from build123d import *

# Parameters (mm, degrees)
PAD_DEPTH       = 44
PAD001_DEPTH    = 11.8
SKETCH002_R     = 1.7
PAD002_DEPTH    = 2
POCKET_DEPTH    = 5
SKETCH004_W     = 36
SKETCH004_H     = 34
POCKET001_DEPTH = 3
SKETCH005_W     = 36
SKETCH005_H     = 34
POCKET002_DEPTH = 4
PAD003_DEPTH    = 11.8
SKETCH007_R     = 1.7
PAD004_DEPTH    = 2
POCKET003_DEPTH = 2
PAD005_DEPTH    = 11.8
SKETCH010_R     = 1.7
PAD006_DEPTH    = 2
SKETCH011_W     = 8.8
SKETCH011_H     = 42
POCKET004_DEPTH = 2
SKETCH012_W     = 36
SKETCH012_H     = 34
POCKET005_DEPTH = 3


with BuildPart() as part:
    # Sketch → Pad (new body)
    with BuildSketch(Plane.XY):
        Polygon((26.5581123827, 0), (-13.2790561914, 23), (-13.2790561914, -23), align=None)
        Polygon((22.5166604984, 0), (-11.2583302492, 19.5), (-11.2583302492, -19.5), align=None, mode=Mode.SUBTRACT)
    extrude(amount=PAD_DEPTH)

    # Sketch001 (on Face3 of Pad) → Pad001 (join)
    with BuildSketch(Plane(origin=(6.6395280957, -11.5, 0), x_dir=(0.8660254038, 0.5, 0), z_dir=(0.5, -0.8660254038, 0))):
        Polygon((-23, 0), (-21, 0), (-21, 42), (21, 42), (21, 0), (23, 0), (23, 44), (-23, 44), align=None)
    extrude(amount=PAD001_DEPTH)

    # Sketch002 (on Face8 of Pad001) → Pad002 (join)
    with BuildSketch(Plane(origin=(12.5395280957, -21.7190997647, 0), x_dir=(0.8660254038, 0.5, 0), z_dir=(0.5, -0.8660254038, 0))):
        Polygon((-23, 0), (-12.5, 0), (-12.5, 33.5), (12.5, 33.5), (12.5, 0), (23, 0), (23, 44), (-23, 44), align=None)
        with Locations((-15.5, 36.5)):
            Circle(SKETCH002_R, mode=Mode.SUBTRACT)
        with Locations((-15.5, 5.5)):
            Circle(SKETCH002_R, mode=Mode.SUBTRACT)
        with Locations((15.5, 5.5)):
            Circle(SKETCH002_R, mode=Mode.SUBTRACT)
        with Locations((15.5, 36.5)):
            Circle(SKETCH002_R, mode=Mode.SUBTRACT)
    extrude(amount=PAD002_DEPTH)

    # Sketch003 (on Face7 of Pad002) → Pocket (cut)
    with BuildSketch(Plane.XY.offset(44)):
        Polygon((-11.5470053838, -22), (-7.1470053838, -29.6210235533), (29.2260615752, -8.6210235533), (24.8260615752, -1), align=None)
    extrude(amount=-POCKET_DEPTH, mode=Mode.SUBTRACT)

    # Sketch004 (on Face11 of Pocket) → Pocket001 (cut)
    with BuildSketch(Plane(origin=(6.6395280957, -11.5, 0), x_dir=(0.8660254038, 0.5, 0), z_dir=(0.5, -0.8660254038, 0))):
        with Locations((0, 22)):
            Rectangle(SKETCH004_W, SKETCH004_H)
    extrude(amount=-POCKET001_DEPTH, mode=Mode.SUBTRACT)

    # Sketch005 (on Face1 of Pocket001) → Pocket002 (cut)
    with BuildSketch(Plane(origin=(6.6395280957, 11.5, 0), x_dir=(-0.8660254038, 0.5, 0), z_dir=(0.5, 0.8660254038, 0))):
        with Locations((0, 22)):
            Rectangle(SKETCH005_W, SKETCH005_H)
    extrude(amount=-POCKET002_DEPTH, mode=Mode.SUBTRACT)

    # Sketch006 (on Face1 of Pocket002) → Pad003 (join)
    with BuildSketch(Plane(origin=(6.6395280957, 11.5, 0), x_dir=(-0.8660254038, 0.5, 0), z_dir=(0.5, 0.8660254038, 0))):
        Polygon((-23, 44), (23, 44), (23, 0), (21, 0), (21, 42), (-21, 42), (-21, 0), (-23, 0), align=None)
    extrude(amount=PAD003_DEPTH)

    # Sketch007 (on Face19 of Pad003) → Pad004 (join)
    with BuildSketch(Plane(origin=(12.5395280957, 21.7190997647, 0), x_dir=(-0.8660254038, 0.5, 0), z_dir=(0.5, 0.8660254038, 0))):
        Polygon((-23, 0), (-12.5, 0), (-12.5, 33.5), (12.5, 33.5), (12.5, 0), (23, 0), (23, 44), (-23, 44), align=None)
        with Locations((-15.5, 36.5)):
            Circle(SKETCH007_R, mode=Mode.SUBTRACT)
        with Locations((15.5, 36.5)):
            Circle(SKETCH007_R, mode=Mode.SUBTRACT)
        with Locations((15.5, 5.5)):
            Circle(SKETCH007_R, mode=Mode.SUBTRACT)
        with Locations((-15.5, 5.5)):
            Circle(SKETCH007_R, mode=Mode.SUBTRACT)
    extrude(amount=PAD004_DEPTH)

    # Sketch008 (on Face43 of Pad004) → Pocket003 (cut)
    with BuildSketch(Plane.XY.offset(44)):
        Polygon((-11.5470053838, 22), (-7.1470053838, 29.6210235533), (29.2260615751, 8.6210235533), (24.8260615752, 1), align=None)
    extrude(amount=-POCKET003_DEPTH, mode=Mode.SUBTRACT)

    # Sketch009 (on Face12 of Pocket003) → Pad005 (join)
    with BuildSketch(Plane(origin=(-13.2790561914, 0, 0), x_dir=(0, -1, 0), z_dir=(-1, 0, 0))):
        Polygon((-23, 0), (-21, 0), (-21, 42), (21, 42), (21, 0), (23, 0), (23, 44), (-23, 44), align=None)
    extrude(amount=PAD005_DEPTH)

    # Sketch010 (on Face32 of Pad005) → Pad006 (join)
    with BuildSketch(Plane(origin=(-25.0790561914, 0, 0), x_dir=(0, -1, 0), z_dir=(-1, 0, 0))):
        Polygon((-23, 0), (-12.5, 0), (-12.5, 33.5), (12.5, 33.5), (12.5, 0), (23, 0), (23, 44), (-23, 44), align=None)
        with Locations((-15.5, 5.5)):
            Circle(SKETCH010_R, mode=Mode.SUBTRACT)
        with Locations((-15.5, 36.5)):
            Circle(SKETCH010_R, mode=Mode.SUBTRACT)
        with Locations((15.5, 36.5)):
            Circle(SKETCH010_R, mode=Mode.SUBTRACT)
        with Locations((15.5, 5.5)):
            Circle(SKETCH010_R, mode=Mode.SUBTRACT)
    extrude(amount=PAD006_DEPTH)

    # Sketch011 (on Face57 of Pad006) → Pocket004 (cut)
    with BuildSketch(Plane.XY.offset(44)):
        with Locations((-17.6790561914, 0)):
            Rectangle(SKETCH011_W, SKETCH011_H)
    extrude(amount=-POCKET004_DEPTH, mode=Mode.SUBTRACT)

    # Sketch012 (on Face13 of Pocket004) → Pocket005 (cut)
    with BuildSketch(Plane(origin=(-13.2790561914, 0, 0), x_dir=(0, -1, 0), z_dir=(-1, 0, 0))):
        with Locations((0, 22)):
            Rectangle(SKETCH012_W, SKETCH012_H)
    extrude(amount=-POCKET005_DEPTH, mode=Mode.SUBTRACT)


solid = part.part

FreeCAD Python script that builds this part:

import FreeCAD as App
import Part
import Sketcher
from FreeCAD import Vector
Q = App.Units.Quantity


def add_polygon(sketch, points):
    """Adds a closed chain of lines whose ends are joined by coincident constraints."""
    first, n = sketch.GeometryCount, len(points)
    for a, b in zip(points, points[1:] + points[:1]):
        sketch.addGeometry(Part.LineSegment(App.Vector(*a, 0), App.Vector(*b, 0)), False)
    for i in range(n):
        sketch.addConstraint(Sketcher.Constraint("Coincident", first + i, 2, first + (i + 1) % n, 1))

doc = App.newDocument("Part")
body = doc.addObject("PartDesign::Body", "Body")

# Sketch on XY plane
sketch1 = body.newObject("Sketcher::SketchObject", "Sketch")
sketch1.AttachmentSupport = (doc.getObject("XY_Plane"), [""])
sketch1.MapMode = "FlatFace"
add_polygon(sketch1, [(27, 0), (-13, 23), (-13, -23)])  # lines 0-2
add_polygon(sketch1, [(-11, 20), (23, 0), (-11, -20)])  # lines 3-5
sketch1.addConstraint([
    Sketcher.Constraint("Vertical", 1),
    Sketcher.Constraint("Vertical", 5),
    Sketcher.Constraint("PointOnObject", 2, 2, -1),
    Sketcher.Constraint("PointOnObject", 3, 2, -1),
    Sketcher.Constraint("Parallel", 0, 3),
    Sketcher.Constraint("Parallel", 2, 4),
    Sketcher.Constraint("Equal", 0, 2),
    Sketcher.Constraint("DistanceY", 1, 2, 1, 1, 46.0),
    Sketcher.Constraint("DistanceY", 5, 1, 5, 2, 39.0),
    Sketcher.Constraint("Angle", 0, Q("150 deg")),
    Sketcher.Constraint("DistanceX", -1, 1, 3, 2, 22.51666),
    Sketcher.Constraint("DistanceX", 3, 2, 2, 2, 4.041452),
])
pad1 = body.newObject("PartDesign::Pad", "Pad")
pad1.Profile = sketch1
pad1.Length = 44

# Sketch on an angled plane
sketch2 = body.newObject("Sketcher::SketchObject", "Sketch001")
sketch2.Placement = App.Placement(Vector(6.639528, -11.5, 0), App.Rotation(Vector(0.866025404, 0.5, 0), Vector(0, 0, 1), Vector(0.5, -0.866025404, 0), "ZXY"))
add_polygon(sketch2, [(-23, 0), (-21, 0), (-21, 42), (21, 42), (21, 0), (23, 0), (23, 44), (-23, 44)])  # lines 0-7
sketch2.addConstraint([
    Sketcher.Constraint("Horizontal", 0),
    Sketcher.Constraint("Vertical", 1),
    Sketcher.Constraint("Horizontal", 2),
    Sketcher.Constraint("Vertical", 3),
    Sketcher.Constraint("Horizontal", 4),
    Sketcher.Constraint("Vertical", 5),
    Sketcher.Constraint("Horizontal", 6),
    Sketcher.Constraint("Vertical", 7),
    Sketcher.Constraint("Symmetric", 0, 2, 3, 2, -1, 1),
    Sketcher.Constraint("Symmetric", 4, 2, 7, 2, -2),
    Sketcher.Constraint("Equal", 2, 1),
    Sketcher.Constraint("DistanceX", 0, 1, 0, 2, 2.0),
    Sketcher.Constraint("DistanceX", 2, 1, 2, 2, 42.0),
    Sketcher.Constraint("DistanceY", 5, 1, 5, 2, 44.0),
])
pad2 = body.newObject("PartDesign::Pad", "Pad001")
pad2.Profile = sketch2
pad2.Length = 11.8

# Sketch on an angled plane
sketch3 = body.newObject("Sketcher::SketchObject", "Sketch002")
sketch3.Placement = App.Placement(Vector(12.539528, -21.7191, 0), App.Rotation(Vector(0.866025404, 0.5, 0), Vector(0, 0, 1), Vector(0.5, -0.866025404, 0), "ZXY"))
add_polygon(sketch3, [(-23, 0), (-12.5, 0), (-12.5, 33.5), (12.5, 33.5), (12.5, 0), (23, 0), (23, 44), (-23, 44)])  # lines 0-7
sketch3.addGeometry(Part.Circle(Vector(-15.5, 5.5, 0), Vector(0, 0, 1), 1.7), False)  # 8
sketch3.addGeometry(Part.Circle(Vector(15.5, 5.5, 0), Vector(0, 0, 1), 1.7), False)  # 9
sketch3.addGeometry(Part.Circle(Vector(-15.5, 36.5, 0), Vector(0, 0, 1), 1.7), False)  # 10
sketch3.addGeometry(Part.Circle(Vector(15.5, 36.5, 0), Vector(0, 0, 1), 1.7), False)  # 11
sketch3.addConstraint([
    Sketcher.Constraint("Horizontal", 0),
    Sketcher.Constraint("Vertical", 1),
    Sketcher.Constraint("Horizontal", 2),
    Sketcher.Constraint("Vertical", 3),
    Sketcher.Constraint("Horizontal", 4),
    Sketcher.Constraint("Vertical", 5),
    Sketcher.Constraint("Horizontal", 6),
    Sketcher.Constraint("Vertical", 7),
    Sketcher.Constraint("Equal", 8, 9),
    Sketcher.Constraint("Equal", 9, 10),
    Sketcher.Constraint("Equal", 10, 11),
    Sketcher.Constraint("Symmetric", 0, 2, 3, 2, -1, 1),
    Sketcher.Constraint("Symmetric", 8, 3, 9, 3, -2),
    Sketcher.Constraint("Symmetric", 10, 3, 11, 3, -2),
    Sketcher.Constraint("Symmetric", 4, 2, 7, 2, -2),
    Sketcher.Constraint("Vertical", 8, 3, 10, 3),
    Sketcher.Constraint("Diameter", 8, 3.4),
    Sketcher.Constraint("DistanceX", 2, 1, 2, 2, 25.0),
    Sketcher.Constraint("DistanceX", 6, 2, 6, 1, 46.0),
    Sketcher.Constraint("DistanceY", 5, 1, 5, 2, 44.0),
    Sketcher.Constraint("DistanceY", 1, 1, 1, 2, 33.5),
    Sketcher.Constraint("DistanceX", 8, 3, 9, 3, 31.0),
    Sketcher.Constraint("DistanceY", 8, 3, 10, 3, 31.0),
    Sketcher.Constraint("DistanceY", 1, 2, 10, 3, 3.0),
])
pad3 = body.newObject("PartDesign::Pad", "Pad002")
pad3.Profile = sketch3
pad3.Length = 2

# Sketch on XY plane
sketch4 = body.newObject("Sketcher::SketchObject", "Sketch003")
sketch4.AttachmentSupport = (doc.getObject("XY_Plane"), [""])
sketch4.MapMode = "FlatFace"
sketch4.AttachmentOffset = App.Placement(Vector(0, 0, 44), App.Rotation())
add_polygon(sketch4, [(-12, -22), (-7, -30), (29, -9), (25, -1)])  # lines 0-3
sketch4.addConstraint([
    Sketcher.Constraint("Perpendicular", 0, 1),
    Sketcher.Constraint("Perpendicular", 1, 2),
    Sketcher.Constraint("Perpendicular", 2, 3),
    Sketcher.Constraint("Angle", 0, Q("-60 deg")),
    Sketcher.Constraint("Distance", 1, 42.0),
    Sketcher.Constraint("DistanceY", 2, 2, -1, 1, 1.0),
    Sketcher.Constraint("Distance", 0, 8.8),
    Sketcher.Constraint("DistanceX", -1, 1, 1, 2, 29.226062),
])
pocket1 = body.newObject("PartDesign::Pocket", "Pocket")
pocket1.Profile = sketch4
pocket1.Length = 5

# Sketch on an angled plane
sketch5 = body.newObject("Sketcher::SketchObject", "Sketch004")
sketch5.Placement = App.Placement(Vector(6.639528, -11.5, 0), App.Rotation(Vector(0.866025404, 0.5, 0), Vector(0, 0, 1), Vector(0.5, -0.866025404, 0), "ZXY"))
add_polygon(sketch5, [(-18, 39), (-18, 5), (18, 5), (18, 39)])  # lines 0-3
sketch5.addConstraint([
    Sketcher.Constraint("Vertical", 0),
    Sketcher.Constraint("Horizontal", 1),
    Sketcher.Constraint("Vertical", 2),
    Sketcher.Constraint("Horizontal", 3),
    Sketcher.Constraint("DistanceX", 1, 1, 1, 2, 36.0),
    Sketcher.Constraint("DistanceY", 0, 2, 0, 1, 34.0),
    Sketcher.Constraint("DistanceX", 0, 2, -1, 1, 18.0),
    Sketcher.Constraint("DistanceY", -1, 1, 0, 2, 5.0),
])
pocket2 = body.newObject("PartDesign::Pocket", "Pocket001")
pocket2.Profile = sketch5
pocket2.Length = 3

# Sketch on an angled plane
sketch6 = body.newObject("Sketcher::SketchObject", "Sketch005")
sketch6.Placement = App.Placement(Vector(6.639528, 11.5, 0), App.Rotation(Vector(-0.866025404, 0.5, 0), Vector(0, 0, 1), Vector(0.5, 0.866025404, 0), "ZXY"))
add_polygon(sketch6, [(-18, 39), (-18, 5), (18, 5), (18, 39)])  # lines 0-3
sketch6.addConstraint([
    Sketcher.Constraint("Vertical", 0),
    Sketcher.Constraint("Horizontal", 1),
    Sketcher.Constraint("Vertical", 2),
    Sketcher.Constraint("Horizontal", 3),
    Sketcher.Constraint("DistanceX", 1, 1, 1, 2, 36.0),
    Sketcher.Constraint("DistanceY", 0, 2, 0, 1, 34.0),
    Sketcher.Constraint("DistanceX", 0, 2, -1, 1, 18.0),
    Sketcher.Constraint("DistanceY", -1, 1, 0, 2, 5.0),
])
pocket3 = body.newObject("PartDesign::Pocket", "Pocket002")
pocket3.Profile = sketch6
pocket3.Length = 4

# Sketch on an angled plane
sketch7 = body.newObject("Sketcher::SketchObject", "Sketch006")
sketch7.Placement = App.Placement(Vector(6.639528, 11.5, 0), App.Rotation(Vector(-0.866025404, 0.5, 0), Vector(0, 0, 1), Vector(0.5, 0.866025404, 0), "ZXY"))
add_polygon(sketch7, [(23, 44), (-23, 44), (-23, 0), (-21, 0), (-21, 42), (21, 42), (21, 0), (23, 0)])  # lines 0-7
sketch7.addConstraint([
    Sketcher.Constraint("Horizontal", 0),
    Sketcher.Constraint("Vertical", 1),
    Sketcher.Constraint("Horizontal", 2),
    Sketcher.Constraint("Vertical", 3),
    Sketcher.Constraint("Horizontal", 4),
    Sketcher.Constraint("Vertical", 5),
    Sketcher.Constraint("Horizontal", 6),
    Sketcher.Constraint("Vertical", 7),
    Sketcher.Constraint("Symmetric", 2, 2, 5, 2, -1, 1),
    Sketcher.Constraint("Symmetric", 1, 2, 6, 2, -2),
    Sketcher.Constraint("Equal", 4, 3),
    Sketcher.Constraint("DistanceX", 0, 2, 0, 1, 46.0),
    Sketcher.Constraint("DistanceX", 2, 1, 2, 2, 2.0),
    Sketcher.Constraint("DistanceY", 1, 2, 1, 1, 44.0),
])
pad4 = body.newObject("PartDesign::Pad", "Pad003")
pad4.Profile = sketch7
pad4.Length = 11.8

# Sketch on an angled plane
sketch8 = body.newObject("Sketcher::SketchObject", "Sketch007")
sketch8.Placement = App.Placement(Vector(12.539528, 21.7191, 0), App.Rotation(Vector(-0.866025404, 0.5, 0), Vector(0, 0, 1), Vector(0.5, 0.866025404, 0), "ZXY"))
add_polygon(sketch8, [(-23, 0), (-12.5, 0), (-12.5, 33.5), (12.5, 33.5), (12.5, 0), (23, 0), (23, 44), (-23, 44)])  # lines 0-7
sketch8.addGeometry(Part.Circle(Vector(-15.5, 5.5, 0), Vector(0, 0, 1), 1.7), False)  # 8
sketch8.addGeometry(Part.Circle(Vector(15.5, 5.5, 0), Vector(0, 0, 1), 1.7), False)  # 9
sketch8.addGeometry(Part.Circle(Vector(-15.5, 36.5, 0), Vector(0, 0, 1), 1.7), False)  # 10
sketch8.addGeometry(Part.Circle(Vector(15.5, 36.5, 0), Vector(0, 0, 1), 1.7), False)  # 11
sketch8.addConstraint([
    Sketcher.Constraint("Horizontal", 0),
    Sketcher.Constraint("Vertical", 1),
    Sketcher.Constraint("Horizontal", 2),
    Sketcher.Constraint("Vertical", 3),
    Sketcher.Constraint("Horizontal", 4),
    Sketcher.Constraint("Vertical", 5),
    Sketcher.Constraint("Horizontal", 6),
    Sketcher.Constraint("Vertical", 7),
    Sketcher.Constraint("Equal", 8, 9),
    Sketcher.Constraint("Equal", 9, 10),
    Sketcher.Constraint("Equal", 10, 11),
    Sketcher.Constraint("Symmetric", 0, 2, 3, 2, -1, 1),
    Sketcher.Constraint("Symmetric", 8, 3, 9, 3, -2),
    Sketcher.Constraint("Symmetric", 10, 3, 11, 3, -2),
    Sketcher.Constraint("Symmetric", 4, 2, 7, 2, -2),
    Sketcher.Constraint("Vertical", 8, 3, 10, 3),
    Sketcher.Constraint("Diameter", 8, 3.4),
    Sketcher.Constraint("DistanceX", 2, 1, 2, 2, 25.0),
    Sketcher.Constraint("DistanceX", 6, 2, 6, 1, 46.0),
    Sketcher.Constraint("DistanceY", 5, 1, 5, 2, 44.0),
    Sketcher.Constraint("DistanceY", 1, 1, 1, 2, 33.5),
    Sketcher.Constraint("DistanceX", 8, 3, 9, 3, 31.0),
    Sketcher.Constraint("DistanceY", 8, 3, 10, 3, 31.0),
    Sketcher.Constraint("DistanceY", 1, 2, 10, 3, 3.0),
])
pad5 = body.newObject("PartDesign::Pad", "Pad004")
pad5.Profile = sketch8
pad5.Length = 2

# Sketch on XY plane
sketch9 = body.newObject("Sketcher::SketchObject", "Sketch008")
sketch9.AttachmentSupport = (doc.getObject("XY_Plane"), [""])
sketch9.MapMode = "FlatFace"
sketch9.AttachmentOffset = App.Placement(Vector(0, 0, 44), App.Rotation())
add_polygon(sketch9, [(-7, 30), (-12, 22), (25, 1), (29, 9)])  # lines 0-3
sketch9.addConstraint([
    Sketcher.Constraint("Perpendicular", 0, 1),
    Sketcher.Constraint("Perpendicular", 1, 2),
    Sketcher.Constraint("Perpendicular", 2, 3),
    Sketcher.Constraint("Angle", 0, Q("-120 deg")),
    Sketcher.Constraint("Distance", 1, 42.0),
    Sketcher.Constraint("DistanceY", -1, 1, 0, 2, 22.0),
    Sketcher.Constraint("Distance", 0, 8.8),
    Sketcher.Constraint("DistanceX", -1, 1, 1, 2, 24.826062),
])
pocket4 = body.newObject("PartDesign::Pocket", "Pocket003")
pocket4.Profile = sketch9
pocket4.Length = 2

# Sketch on YZ plane
sketch10 = body.newObject("Sketcher::SketchObject", "Sketch009")
sketch10.AttachmentSupport = (doc.getObject("YZ_Plane"), [""])
sketch10.MapMode = "FlatFace"
sketch10.AttachmentOffset = App.Placement(Vector(0, 0, -13.279056), App.Rotation())
add_polygon(sketch10, [(23, 0), (21, 0), (21, 42), (-21, 42), (-21, 0), (-23, 0), (-23, 44), (23, 44)])  # lines 0-7
sketch10.addConstraint([
    Sketcher.Constraint("Horizontal", 0),
    Sketcher.Constraint("Vertical", 1),
    Sketcher.Constraint("Horizontal", 2),
    Sketcher.Constraint("Vertical", 3),
    Sketcher.Constraint("Horizontal", 4),
    Sketcher.Constraint("Vertical", 5),
    Sketcher.Constraint("Horizontal", 6),
    Sketcher.Constraint("Vertical", 7),
    Sketcher.Constraint("Symmetric", 0, 2, 3, 2, -1, 1),
    Sketcher.Constraint("Symmetric", 4, 2, 7, 2, -2),
    Sketcher.Constraint("Equal", 2, 1),
    Sketcher.Constraint("DistanceX", 0, 2, 0, 1, 2.0),
    Sketcher.Constraint("DistanceX", 2, 2, 2, 1, 42.0),
    Sketcher.Constraint("DistanceY", 5, 1, 5, 2, 44.0),
])
pad6 = body.newObject("PartDesign::Pad", "Pad005")
pad6.Profile = sketch10
pad6.Length = 11.8
pad6.Reversed = True

# Sketch on YZ plane
sketch11 = body.newObject("Sketcher::SketchObject", "Sketch010")
sketch11.AttachmentSupport = (doc.getObject("YZ_Plane"), [""])
sketch11.MapMode = "FlatFace"
sketch11.AttachmentOffset = App.Placement(Vector(0, 0, -25.079056), App.Rotation())
add_polygon(sketch11, [(23, 0), (12.5, 0), (12.5, 33.5), (-12.5, 33.5), (-12.5, 0), (-23, 0), (-23, 44), (23, 44)])  # lines 0-7
sketch11.addGeometry(Part.Circle(Vector(15.5, 5.5, 0), Vector(0, 0, 1), 1.7), False)  # 8
sketch11.addGeometry(Part.Circle(Vector(-15.5, 5.5, 0), Vector(0, 0, 1), 1.7), False)  # 9
sketch11.addGeometry(Part.Circle(Vector(15.5, 36.5, 0), Vector(0, 0, 1), 1.7), False)  # 10
sketch11.addGeometry(Part.Circle(Vector(-15.5, 36.5, 0), Vector(0, 0, 1), 1.7), False)  # 11
sketch11.addConstraint([
    Sketcher.Constraint("Horizontal", 0),
    Sketcher.Constraint("Vertical", 1),
    Sketcher.Constraint("Horizontal", 2),
    Sketcher.Constraint("Vertical", 3),
    Sketcher.Constraint("Horizontal", 4),
    Sketcher.Constraint("Vertical", 5),
    Sketcher.Constraint("Horizontal", 6),
    Sketcher.Constraint("Vertical", 7),
    Sketcher.Constraint("Equal", 8, 9),
    Sketcher.Constraint("Equal", 9, 10),
    Sketcher.Constraint("Equal", 10, 11),
    Sketcher.Constraint("Symmetric", 0, 2, 3, 2, -1, 1),
    Sketcher.Constraint("Symmetric", 8, 3, 9, 3, -2),
    Sketcher.Constraint("Symmetric", 10, 3, 11, 3, -2),
    Sketcher.Constraint("Symmetric", 4, 2, 7, 2, -2),
    Sketcher.Constraint("Vertical", 8, 3, 10, 3),
    Sketcher.Constraint("Diameter", 8, 3.4),
    Sketcher.Constraint("DistanceX", 2, 2, 2, 1, 25.0),
    Sketcher.Constraint("DistanceX", 6, 1, 6, 2, 46.0),
    Sketcher.Constraint("DistanceY", 5, 1, 5, 2, 44.0),
    Sketcher.Constraint("DistanceY", 1, 1, 1, 2, 33.5),
    Sketcher.Constraint("DistanceX", 9, 3, 8, 3, 31.0),
    Sketcher.Constraint("DistanceY", 8, 3, 10, 3, 31.0),
    Sketcher.Constraint("DistanceY", 1, 2, 10, 3, 3.0),
])
pad7 = body.newObject("PartDesign::Pad", "Pad006")
pad7.Profile = sketch11
pad7.Length = 2
pad7.Reversed = True

# Sketch on XY plane
sketch12 = body.newObject("Sketcher::SketchObject", "Sketch011")
sketch12.AttachmentSupport = (doc.getObject("XY_Plane"), [""])
sketch12.MapMode = "FlatFace"
sketch12.AttachmentOffset = App.Placement(Vector(0, 0, 44), App.Rotation())
add_polygon(sketch12, [(-22, 21), (-22, -21), (-13, -21), (-13, 21)])  # lines 0-3
sketch12.addConstraint([
    Sketcher.Constraint("Vertical", 0),
    Sketcher.Constraint("Horizontal", 1),
    Sketcher.Constraint("Vertical", 2),
    Sketcher.Constraint("Horizontal", 3),
    Sketcher.Constraint("DistanceY", 0, 2, 0, 1, 42.0),
    Sketcher.Constraint("DistanceX", 1, 1, 1, 2, 8.8),
    Sketcher.Constraint("DistanceY", 0, 2, -1, 1, 21.0),
    Sketcher.Constraint("DistanceX", 0, 2, -1, 1, 22.079056),
])
pocket5 = body.newObject("PartDesign::Pocket", "Pocket004")
pocket5.Profile = sketch12
pocket5.Length = 2

# Sketch on YZ plane
sketch13 = body.newObject("Sketcher::SketchObject", "Sketch012")
sketch13.AttachmentSupport = (doc.getObject("YZ_Plane"), [""])
sketch13.MapMode = "FlatFace"
sketch13.AttachmentOffset = App.Placement(Vector(0, 0, -13.279056), App.Rotation())
add_polygon(sketch13, [(18, 39), (18, 5), (-18, 5), (-18, 39)])  # lines 0-3
sketch13.addConstraint([
    Sketcher.Constraint("Vertical", 0),
    Sketcher.Constraint("Horizontal", 1),
    Sketcher.Constraint("Vertical", 2),
    Sketcher.Constraint("Horizontal", 3),
    Sketcher.Constraint("DistanceX", 1, 2, 1, 1, 36.0),
    Sketcher.Constraint("DistanceY", 0, 2, 0, 1, 34.0),
    Sketcher.Constraint("DistanceX", -1, 1, 0, 2, 18.0),
    Sketcher.Constraint("DistanceY", -1, 1, 0, 2, 5.0),
])
pocket6 = body.newObject("PartDesign::Pocket", "Pocket005")
pocket6.Profile = sketch13
pocket6.Length = 3
pocket6.Reversed = True

doc.recompute()
